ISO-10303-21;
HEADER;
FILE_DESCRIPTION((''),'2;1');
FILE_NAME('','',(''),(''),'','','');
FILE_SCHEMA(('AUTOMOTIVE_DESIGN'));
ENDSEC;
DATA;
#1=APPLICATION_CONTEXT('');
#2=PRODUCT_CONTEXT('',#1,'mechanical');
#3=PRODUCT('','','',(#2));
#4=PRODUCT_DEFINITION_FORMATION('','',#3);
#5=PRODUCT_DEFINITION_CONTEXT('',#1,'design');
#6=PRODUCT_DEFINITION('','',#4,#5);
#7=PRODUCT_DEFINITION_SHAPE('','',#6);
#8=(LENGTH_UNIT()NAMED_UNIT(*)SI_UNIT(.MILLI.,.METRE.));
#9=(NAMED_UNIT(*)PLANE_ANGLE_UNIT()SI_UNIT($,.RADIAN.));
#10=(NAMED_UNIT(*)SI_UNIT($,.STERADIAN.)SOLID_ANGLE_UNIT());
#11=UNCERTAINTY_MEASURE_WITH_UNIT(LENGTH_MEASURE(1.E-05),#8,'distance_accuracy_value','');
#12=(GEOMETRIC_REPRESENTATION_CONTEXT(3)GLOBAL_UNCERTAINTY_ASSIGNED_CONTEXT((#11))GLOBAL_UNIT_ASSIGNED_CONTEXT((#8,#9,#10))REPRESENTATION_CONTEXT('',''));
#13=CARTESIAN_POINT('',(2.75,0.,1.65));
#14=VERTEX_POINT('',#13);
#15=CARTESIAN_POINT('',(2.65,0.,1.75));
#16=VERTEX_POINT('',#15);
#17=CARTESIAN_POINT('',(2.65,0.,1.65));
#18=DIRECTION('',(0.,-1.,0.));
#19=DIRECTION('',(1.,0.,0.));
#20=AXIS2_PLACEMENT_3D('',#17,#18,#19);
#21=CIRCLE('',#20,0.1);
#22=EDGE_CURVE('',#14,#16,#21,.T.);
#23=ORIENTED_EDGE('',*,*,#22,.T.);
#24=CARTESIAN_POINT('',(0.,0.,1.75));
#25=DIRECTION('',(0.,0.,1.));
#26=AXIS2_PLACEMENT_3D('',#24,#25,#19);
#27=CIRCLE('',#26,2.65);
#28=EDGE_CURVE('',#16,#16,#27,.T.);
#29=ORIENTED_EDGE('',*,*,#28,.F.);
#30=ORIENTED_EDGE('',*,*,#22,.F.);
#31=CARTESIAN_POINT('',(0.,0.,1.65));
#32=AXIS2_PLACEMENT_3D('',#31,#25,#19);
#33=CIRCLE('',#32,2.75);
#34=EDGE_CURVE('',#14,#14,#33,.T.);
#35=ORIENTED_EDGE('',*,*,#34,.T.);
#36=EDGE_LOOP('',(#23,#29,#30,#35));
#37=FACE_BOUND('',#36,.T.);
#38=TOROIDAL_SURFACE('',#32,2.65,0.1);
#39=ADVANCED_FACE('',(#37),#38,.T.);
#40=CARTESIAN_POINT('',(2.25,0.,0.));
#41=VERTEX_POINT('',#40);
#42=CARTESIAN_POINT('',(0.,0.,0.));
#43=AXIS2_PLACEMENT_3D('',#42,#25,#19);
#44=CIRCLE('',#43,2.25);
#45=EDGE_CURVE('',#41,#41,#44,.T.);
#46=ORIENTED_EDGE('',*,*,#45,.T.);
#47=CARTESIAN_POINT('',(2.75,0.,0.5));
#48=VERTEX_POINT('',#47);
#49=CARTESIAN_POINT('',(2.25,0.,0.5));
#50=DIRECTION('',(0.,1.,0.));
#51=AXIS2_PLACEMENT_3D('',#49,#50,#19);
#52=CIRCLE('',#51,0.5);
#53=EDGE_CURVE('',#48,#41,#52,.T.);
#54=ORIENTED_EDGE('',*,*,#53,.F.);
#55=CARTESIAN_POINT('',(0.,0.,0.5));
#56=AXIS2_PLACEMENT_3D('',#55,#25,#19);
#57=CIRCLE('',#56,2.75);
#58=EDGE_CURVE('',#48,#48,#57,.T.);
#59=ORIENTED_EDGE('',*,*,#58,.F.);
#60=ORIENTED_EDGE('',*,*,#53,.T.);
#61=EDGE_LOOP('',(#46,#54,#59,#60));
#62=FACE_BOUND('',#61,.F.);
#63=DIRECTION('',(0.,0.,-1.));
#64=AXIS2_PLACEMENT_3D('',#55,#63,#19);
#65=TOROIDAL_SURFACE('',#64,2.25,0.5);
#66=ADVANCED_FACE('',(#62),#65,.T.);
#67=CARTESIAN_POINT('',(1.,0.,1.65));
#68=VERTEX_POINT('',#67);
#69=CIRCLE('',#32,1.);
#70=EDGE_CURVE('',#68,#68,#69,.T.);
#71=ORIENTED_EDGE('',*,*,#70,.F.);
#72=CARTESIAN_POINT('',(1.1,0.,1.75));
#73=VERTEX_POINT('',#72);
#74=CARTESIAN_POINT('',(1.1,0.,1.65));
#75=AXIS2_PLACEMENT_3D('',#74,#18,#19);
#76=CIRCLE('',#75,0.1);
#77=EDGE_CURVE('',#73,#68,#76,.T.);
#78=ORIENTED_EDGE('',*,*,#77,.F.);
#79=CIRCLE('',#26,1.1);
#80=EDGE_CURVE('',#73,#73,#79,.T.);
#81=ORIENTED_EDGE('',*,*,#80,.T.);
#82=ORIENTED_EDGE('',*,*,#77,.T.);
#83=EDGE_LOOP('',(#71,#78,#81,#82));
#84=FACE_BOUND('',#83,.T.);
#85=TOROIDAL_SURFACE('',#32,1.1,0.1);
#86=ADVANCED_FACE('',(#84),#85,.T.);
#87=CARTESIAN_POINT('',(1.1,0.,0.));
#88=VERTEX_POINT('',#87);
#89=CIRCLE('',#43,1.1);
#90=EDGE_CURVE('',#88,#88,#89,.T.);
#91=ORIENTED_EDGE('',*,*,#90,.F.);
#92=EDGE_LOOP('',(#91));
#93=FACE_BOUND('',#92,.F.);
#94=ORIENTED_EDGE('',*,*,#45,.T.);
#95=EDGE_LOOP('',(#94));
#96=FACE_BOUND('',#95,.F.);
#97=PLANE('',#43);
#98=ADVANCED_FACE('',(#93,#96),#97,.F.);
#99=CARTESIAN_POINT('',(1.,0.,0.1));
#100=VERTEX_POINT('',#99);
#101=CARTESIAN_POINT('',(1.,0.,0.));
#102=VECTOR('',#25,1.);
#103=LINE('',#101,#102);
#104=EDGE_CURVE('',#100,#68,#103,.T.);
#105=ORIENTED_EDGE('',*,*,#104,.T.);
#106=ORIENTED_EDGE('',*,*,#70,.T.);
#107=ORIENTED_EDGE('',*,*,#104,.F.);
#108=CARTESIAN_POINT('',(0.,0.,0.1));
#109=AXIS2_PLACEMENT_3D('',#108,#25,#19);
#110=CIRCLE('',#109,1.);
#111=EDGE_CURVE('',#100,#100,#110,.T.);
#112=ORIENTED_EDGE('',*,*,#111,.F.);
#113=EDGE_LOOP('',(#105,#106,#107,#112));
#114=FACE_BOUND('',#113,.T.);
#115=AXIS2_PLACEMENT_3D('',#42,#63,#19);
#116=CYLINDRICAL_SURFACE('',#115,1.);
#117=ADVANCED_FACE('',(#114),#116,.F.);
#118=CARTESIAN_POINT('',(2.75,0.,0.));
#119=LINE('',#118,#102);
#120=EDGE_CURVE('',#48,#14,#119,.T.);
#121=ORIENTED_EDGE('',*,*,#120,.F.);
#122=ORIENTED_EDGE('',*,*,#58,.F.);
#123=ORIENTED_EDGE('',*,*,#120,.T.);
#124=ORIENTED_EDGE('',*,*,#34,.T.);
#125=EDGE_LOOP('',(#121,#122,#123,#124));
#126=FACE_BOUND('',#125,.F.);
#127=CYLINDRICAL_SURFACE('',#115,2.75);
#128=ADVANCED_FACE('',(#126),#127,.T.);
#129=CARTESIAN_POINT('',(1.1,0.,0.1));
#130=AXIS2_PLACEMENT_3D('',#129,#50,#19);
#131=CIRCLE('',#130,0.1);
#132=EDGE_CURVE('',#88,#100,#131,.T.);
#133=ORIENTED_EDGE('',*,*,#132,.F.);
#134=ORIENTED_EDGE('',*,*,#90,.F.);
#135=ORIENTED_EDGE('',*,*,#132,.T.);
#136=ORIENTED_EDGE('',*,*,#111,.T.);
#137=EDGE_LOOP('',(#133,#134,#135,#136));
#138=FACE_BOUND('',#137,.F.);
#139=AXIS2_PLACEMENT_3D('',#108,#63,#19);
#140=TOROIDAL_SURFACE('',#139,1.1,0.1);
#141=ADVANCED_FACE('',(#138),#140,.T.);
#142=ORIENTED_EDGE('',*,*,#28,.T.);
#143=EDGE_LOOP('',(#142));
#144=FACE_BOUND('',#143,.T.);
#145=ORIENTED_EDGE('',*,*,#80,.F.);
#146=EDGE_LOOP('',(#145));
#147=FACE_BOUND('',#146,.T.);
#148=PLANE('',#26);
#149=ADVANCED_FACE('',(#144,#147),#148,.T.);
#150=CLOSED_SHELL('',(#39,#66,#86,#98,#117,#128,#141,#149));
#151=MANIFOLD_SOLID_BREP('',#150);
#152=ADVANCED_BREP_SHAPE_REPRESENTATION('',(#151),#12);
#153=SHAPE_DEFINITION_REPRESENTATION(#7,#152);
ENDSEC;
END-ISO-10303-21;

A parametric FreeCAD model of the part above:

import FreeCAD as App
import Part
import Sketcher
from FreeCAD import Vector
Q = App.Units.Quantity


def edges_at(feature, points):
    """Names of the edges that pass closest to the given points."""
    edges = feature.Shape.Edges
    near = lambda p: min(range(len(edges)), key=lambda i: edges[i].distToShape(Part.Vertex(*p))[0])
    return sorted({f"Edge{near(p) + 1}" for p in points})

doc = App.newDocument("Part")
params = doc.addObject("Spreadsheet::Sheet", "Params")
for row, (alias, value) in enumerate([
    ("sketch1_diameter", "2 mm"),
    ("sketch1_diameter2", "5.5 mm"),
    ("pad1_length", "1.75 mm"),
    ("fillet_radius", "0.5 mm"),
    ("fillet2_radius", "0.1 mm"),
], start=1):
    params.set(f"A{row}", alias)
    params.set(f"B{row}", "=" + value)
    params.setAlias(f"B{row}", alias)

body = doc.addObject("PartDesign::Body", "Body")

# Sketch on XY plane
sketch1 = doc.addObject("Sketcher::SketchObject", "Sketch")
body.addObject(sketch1)
sketch1.AttachmentSupport = (doc.XY_Plane, [""])
sketch1.MapMode = "FlatFace"
sketch1.addGeometry([
    Part.Circle(Vector(0, 0, 0), Vector(0, 0, 1), 2.8),
    Part.Circle(Vector(0, 0, 0), Vector(0, 0, 1), 1),
], False)
sketch1.addConstraint([
    Sketcher.Constraint("Coincident", 0, 3, -1, 1),
    Sketcher.Constraint("Coincident", 1, 3, -1, 1),
    Sketcher.Constraint("Diameter", 1, Q("2 mm")),
    Sketcher.Constraint("Diameter", 0, Q("5.5 mm")),
])
sketch1.setExpression("Constraints[2]", "Params.sketch1_diameter")
sketch1.setExpression("Constraints[3]", "Params.sketch1_diameter2")
pad1 = doc.addObject("PartDesign::Pad", "Pad")
body.addObject(pad1)
pad1.Profile = sketch1
pad1.setExpression("Length", "Params.pad1_length")
doc.recompute()

fillet = doc.addObject("PartDesign::Fillet", "Fillet")
body.addObject(fillet)
fillet.Base = (pad1, edges_at(pad1, [(-2.75, 0, 0)]))
fillet.setExpression("Radius", "Params.fillet_radius")
doc.recompute()

fillet2 = doc.addObject("PartDesign::Fillet", "Fillet001")
body.addObject(fillet2)
fillet2.Base = (fillet, edges_at(fillet, [(-1, 0, 0), (-2.75, 0, 1.75), (-1, 0, 1.75)]))
fillet2.setExpression("Radius", "Params.fillet2_radius")

doc.recompute()
